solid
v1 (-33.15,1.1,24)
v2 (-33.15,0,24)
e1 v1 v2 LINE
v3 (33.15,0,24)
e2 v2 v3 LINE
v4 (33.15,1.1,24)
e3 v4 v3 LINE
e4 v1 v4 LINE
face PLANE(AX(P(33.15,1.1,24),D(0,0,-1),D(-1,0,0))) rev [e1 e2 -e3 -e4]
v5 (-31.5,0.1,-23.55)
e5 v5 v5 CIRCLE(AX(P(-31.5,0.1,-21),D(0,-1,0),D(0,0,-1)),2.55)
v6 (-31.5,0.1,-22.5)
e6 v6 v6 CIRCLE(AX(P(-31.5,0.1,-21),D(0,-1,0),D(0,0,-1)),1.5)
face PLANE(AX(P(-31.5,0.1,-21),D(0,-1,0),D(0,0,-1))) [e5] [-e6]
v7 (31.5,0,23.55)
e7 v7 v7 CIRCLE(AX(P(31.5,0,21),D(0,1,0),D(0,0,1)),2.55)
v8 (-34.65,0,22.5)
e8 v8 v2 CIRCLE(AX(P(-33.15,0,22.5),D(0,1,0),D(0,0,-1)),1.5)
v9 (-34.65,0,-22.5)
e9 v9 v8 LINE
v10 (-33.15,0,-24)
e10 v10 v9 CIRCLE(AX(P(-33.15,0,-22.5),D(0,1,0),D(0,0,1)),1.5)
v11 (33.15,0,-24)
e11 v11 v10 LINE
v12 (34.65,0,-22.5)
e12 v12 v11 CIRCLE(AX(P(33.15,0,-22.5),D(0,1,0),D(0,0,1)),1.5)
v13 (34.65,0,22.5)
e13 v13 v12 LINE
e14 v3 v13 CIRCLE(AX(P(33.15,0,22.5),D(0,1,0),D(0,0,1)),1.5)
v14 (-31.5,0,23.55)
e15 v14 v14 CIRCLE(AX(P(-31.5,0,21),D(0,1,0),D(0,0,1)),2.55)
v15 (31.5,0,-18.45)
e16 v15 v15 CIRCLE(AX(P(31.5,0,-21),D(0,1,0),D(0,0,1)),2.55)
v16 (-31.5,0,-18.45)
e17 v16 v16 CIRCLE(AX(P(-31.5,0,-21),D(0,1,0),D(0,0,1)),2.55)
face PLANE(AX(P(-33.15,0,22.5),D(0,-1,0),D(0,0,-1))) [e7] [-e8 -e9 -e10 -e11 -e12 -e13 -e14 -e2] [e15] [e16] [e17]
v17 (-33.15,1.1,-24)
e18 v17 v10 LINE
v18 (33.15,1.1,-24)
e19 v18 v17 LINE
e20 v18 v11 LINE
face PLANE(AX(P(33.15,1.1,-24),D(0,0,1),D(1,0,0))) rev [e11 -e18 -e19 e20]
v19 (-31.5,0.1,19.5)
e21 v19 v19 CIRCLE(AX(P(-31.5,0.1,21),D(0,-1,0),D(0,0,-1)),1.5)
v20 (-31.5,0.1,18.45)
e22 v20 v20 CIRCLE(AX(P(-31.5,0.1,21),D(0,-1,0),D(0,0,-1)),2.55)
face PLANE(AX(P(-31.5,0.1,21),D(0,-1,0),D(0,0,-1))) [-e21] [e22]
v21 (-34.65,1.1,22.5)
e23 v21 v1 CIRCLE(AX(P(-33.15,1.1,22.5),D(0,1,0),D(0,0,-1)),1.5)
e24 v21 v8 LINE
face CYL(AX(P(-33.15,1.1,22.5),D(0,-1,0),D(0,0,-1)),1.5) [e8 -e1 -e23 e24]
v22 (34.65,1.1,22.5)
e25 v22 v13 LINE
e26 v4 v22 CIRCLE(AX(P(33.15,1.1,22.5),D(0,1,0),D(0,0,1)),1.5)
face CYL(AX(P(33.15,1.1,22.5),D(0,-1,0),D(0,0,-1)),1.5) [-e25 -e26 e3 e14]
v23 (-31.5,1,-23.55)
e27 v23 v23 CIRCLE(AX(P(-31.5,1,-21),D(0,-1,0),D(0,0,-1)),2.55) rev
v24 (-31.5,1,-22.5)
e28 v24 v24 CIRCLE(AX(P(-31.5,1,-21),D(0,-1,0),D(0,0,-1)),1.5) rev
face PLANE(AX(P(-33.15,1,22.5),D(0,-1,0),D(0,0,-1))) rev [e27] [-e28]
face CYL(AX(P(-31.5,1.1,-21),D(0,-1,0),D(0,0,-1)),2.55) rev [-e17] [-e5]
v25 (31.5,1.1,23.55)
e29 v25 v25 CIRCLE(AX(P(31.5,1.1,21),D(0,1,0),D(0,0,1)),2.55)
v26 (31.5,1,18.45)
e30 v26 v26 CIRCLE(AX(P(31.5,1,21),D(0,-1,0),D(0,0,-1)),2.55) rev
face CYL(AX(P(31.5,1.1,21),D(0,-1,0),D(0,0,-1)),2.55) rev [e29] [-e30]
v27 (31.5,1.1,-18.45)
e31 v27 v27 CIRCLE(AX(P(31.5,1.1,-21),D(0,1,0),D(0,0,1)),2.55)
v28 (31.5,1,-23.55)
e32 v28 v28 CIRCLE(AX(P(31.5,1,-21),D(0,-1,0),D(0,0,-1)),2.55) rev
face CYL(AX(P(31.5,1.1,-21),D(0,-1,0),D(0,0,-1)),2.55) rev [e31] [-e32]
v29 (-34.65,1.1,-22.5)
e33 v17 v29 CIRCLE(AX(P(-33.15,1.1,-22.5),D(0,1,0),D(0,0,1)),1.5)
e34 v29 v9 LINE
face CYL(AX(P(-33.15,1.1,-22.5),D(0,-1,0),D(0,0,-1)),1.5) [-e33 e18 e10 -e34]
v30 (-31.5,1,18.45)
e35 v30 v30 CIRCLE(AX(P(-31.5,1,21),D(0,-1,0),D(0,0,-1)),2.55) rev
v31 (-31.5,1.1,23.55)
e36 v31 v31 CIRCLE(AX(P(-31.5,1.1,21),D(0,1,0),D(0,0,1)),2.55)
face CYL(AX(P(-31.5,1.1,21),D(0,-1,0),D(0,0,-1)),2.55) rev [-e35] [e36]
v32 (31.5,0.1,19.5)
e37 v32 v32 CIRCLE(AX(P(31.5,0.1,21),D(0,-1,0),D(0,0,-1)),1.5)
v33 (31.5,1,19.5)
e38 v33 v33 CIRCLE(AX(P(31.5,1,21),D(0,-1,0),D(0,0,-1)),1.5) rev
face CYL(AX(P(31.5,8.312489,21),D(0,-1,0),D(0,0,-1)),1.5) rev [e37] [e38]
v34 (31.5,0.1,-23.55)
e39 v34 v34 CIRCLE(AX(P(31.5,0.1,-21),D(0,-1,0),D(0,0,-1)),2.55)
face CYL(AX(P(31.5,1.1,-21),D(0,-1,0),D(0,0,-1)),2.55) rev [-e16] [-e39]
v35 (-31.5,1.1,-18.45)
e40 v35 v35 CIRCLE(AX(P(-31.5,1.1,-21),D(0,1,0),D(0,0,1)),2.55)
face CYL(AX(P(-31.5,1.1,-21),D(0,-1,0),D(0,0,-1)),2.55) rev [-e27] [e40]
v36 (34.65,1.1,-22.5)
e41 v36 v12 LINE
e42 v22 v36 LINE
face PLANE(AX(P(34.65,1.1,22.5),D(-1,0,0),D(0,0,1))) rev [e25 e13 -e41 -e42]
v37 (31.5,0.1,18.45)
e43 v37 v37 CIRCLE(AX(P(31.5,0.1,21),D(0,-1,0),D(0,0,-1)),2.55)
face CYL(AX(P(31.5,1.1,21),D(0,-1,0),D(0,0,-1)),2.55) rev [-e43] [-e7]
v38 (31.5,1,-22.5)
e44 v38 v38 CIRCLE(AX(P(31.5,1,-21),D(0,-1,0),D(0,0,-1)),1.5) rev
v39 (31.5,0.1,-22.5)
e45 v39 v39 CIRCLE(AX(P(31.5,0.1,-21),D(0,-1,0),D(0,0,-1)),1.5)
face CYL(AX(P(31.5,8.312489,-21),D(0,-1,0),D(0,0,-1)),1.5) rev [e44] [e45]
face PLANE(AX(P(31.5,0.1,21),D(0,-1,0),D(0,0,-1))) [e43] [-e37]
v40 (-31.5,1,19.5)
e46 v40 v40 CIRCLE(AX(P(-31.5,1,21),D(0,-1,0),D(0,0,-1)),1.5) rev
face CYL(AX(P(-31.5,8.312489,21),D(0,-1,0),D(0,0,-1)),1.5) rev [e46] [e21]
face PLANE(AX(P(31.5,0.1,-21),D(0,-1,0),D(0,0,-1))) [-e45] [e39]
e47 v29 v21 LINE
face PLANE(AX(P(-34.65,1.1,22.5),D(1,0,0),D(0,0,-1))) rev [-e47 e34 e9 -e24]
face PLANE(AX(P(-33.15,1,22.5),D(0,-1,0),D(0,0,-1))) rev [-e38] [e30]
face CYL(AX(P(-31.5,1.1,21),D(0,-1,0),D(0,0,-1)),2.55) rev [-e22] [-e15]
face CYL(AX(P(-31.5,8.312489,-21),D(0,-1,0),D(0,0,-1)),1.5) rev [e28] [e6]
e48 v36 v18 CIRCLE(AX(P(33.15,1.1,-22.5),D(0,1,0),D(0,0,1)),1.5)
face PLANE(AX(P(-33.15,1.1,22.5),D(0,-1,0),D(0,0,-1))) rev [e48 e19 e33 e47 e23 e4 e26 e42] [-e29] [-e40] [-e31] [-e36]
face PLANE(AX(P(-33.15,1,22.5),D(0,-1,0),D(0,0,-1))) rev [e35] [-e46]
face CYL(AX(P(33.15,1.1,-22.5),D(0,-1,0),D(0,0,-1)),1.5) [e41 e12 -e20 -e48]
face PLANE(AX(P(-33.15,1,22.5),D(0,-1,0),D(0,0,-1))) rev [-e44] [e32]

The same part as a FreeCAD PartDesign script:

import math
import FreeCAD as App
import Part
import Sketcher
from FreeCAD import Vector
Q = App.Units.Quantity

doc = App.newDocument("Part")
params = doc.addObject("Spreadsheet::Sheet", "Params")
for row, (alias, value) in enumerate([
    ("sketch1_diameter", "5.1 mm"),
    ("sketch1_radius", "1.5 mm"),
    ("sketch1_height", "45 mm"),
    ("sketch1_width", "66.3 mm"),
    ("pad1_length", "1.1 mm"),
    ("sketch2_diameter", "3 mm"),
    ("sketch2_diameter2", "5.1 mm"),
    ("pad2_length", "0.9 mm"),
], start=1):
    params.set(f"A{row}", alias)
    params.set(f"B{row}", "=" + value)
    params.setAlias(f"B{row}", alias)

body = doc.addObject("PartDesign::Body", "Body")

sketch1 = doc.addObject("Sketcher::SketchObject", "Sketch")
body.addObject(sketch1)
sketch1.AttachmentSupport = (doc.XZ_Plane, [""])
sketch1.MapMode = "FlatFace"
sketch1.addGeometry([
    Part.LineSegment(Vector(-33.1, 24, 0), Vector(33.1, 24, 0)),
    Part.ArcOfCircle(Part.Circle(Vector(33.2, 22.5, 0), Vector(0, 0, 1), 1.5), math.radians(0), math.radians(90)),
    Part.LineSegment(Vector(34.6, 22.5, 0), Vector(34.6, -22.5, 0)),
    Part.ArcOfCircle(Part.Circle(Vector(33.2, -22.5, 0), Vector(0, 0, 1), 1.5), math.radians(-90), math.radians(0)),
    Part.LineSegment(Vector(33.1, -24, 0), Vector(-33.1, -24, 0)),
    Part.ArcOfCircle(Part.Circle(Vector(-33.2, -22.5, 0), Vector(0, 0, 1), 1.5), math.radians(180), math.radians(270)),
    Part.LineSegment(Vector(-34.6, -22.5, 0), Vector(-34.6, 22.5, 0)),
    Part.ArcOfCircle(Part.Circle(Vector(-33.2, 22.5, 0), Vector(0, 0, 1), 1.5), math.radians(90), math.radians(180)),
    Part.Circle(Vector(31.5, 21, 0), Vector(0, 0, 1), 2.5),
    Part.Circle(Vector(-31.5, 21, 0), Vector(0, 0, 1), 2.5),
    Part.Circle(Vector(31.5, -21, 0), Vector(0, 0, 1), 2.5),
    Part.Circle(Vector(-31.5, -21, 0), Vector(0, 0, 1), 2.5),
], False)
sketch1.addConstraint([
    Sketcher.Constraint("Tangent", 0, 2, 1, 2),
    Sketcher.Constraint("Tangent", 1, 1, 2, 1),
    Sketcher.Constraint("Tangent", 2, 2, 3, 2),
    Sketcher.Constraint("Tangent", 3, 1, 4, 1),
    Sketcher.Constraint("Tangent", 4, 2, 5, 2),
    Sketcher.Constraint("Tangent", 5, 1, 6, 1),
    Sketcher.Constraint("Tangent", 6, 2, 7, 2),
    Sketcher.Constraint("Tangent", 7, 1, 0, 1),
    Sketcher.Constraint("Horizontal", 0),
    Sketcher.Constraint("Vertical", 2),
    Sketcher.Constraint("Horizontal", 4),
    Sketcher.Constraint("Vertical", 6),
    Sketcher.Constraint("Equal", 1, 3),
    Sketcher.Constraint("Equal", 3, 5),
    Sketcher.Constraint("Equal", 5, 7),
    Sketcher.Constraint("Equal", 8, 9),
    Sketcher.Constraint("Equal", 9, 10),
    Sketcher.Constraint("Equal", 10, 11),
    Sketcher.Constraint("Symmetric", 1, 3, 5, 3, -1, 1),
    Sketcher.Constraint("Symmetric", 9, 3, 10, 3, -1, 1),
    Sketcher.Constraint("Symmetric", 8, 3, 11, 3, -1, 1),
    Sketcher.Constraint("Symmetric", 8, 3, 9, 3, -2),
    Sketcher.Constraint("Diameter", 8, Q("5.1 mm")),
    Sketcher.Constraint("Radius", 1, Q("1.5 mm")),
    Sketcher.Constraint("DistanceY", 2, 2, 2, 1, Q("45 mm")),
    Sketcher.Constraint("DistanceX", 0, 1, 0, 2, Q("66.3 mm")),
    Sketcher.Constraint("DistanceY", -1, 1, 8, 3, Q("21 mm")),
    Sketcher.Constraint("DistanceX", 9, 3, 8, 3, Q("63 mm")),
])
sketch1.setExpression("Constraints[22]", "Params.sketch1_diameter")
sketch1.setExpression("Constraints[23]", "Params.sketch1_radius")
sketch1.setExpression("Constraints[24]", "Params.sketch1_height")
sketch1.setExpression("Constraints[25]", "Params.sketch1_width")
pad1 = doc.addObject("PartDesign::Pad", "Pad")
body.addObject(pad1)
pad1.Profile = sketch1
pad1.setExpression("Length", "Params.pad1_length")
pad1.Reversed = True

sketch2 = doc.addObject("Sketcher::SketchObject", "Sketch001")
body.addObject(sketch2)
sketch2.AttachmentSupport = (doc.XZ_Plane, [""])
sketch2.MapMode = "FlatFace"
sketch2.AttachmentOffset = App.Placement(Vector(0, 0, -0.1), App.Rotation())
sketch2.addGeometry([
    Part.Circle(Vector(-31.5, 21, 0), Vector(0, 0, 1), 2.5),
    Part.Circle(Vector(-31.5, 21, 0), Vector(0, 0, 1), 1.5),
    Part.Circle(Vector(31.5, 21, 0), Vector(0, 0, 1), 2.5),
    Part.Circle(Vector(31.5, 21, 0), Vector(0, 0, 1), 1.5),
    Part.Circle(Vector(31.5, -21, 0), Vector(0, 0, 1), 2.5),
    Part.Circle(Vector(31.5, -21, 0), Vector(0, 0, 1), 1.5),
    Part.Circle(Vector(-31.5, -21, 0), Vector(0, 0, 1), 2.5),
    Part.Circle(Vector(-31.5, -21, 0), Vector(0, 0, 1), 1.5),
], False)
sketch2.addConstraint([
    Sketcher.Constraint("Coincident", 1, 3, 0, 3),
    Sketcher.Constraint("Coincident", 3, 3, 2, 3),
    Sketcher.Constraint("Coincident", 5, 3, 4, 3),
    Sketcher.Constraint("Coincident", 7, 3, 6, 3),
    Sketcher.Constraint("Equal", 0, 2),
    Sketcher.Constraint("Equal", 1, 3),
    Sketcher.Constraint("Equal", 2, 4),
    Sketcher.Constraint("Equal", 3, 5),
    Sketcher.Constraint("Equal", 4, 6),
    Sketcher.Constraint("Equal", 5, 7),
    Sketcher.Constraint("Symmetric", 0, 3, 4, 3, -1, 1),
    Sketcher.Constraint("Symmetric", 2, 3, 6, 3, -1, 1),
    Sketcher.Constraint("Symmetric", 0, 3, 2, 3, -2),
    Sketcher.Constraint("Diameter", 1, Q("3 mm")),
    Sketcher.Constraint("Diameter", 0, Q("5.1 mm")),
    Sketcher.Constraint("DistanceY", -1, 1, 0, 3, Q("21 mm")),
    Sketcher.Constraint("DistanceX", 0, 3, 2, 3, Q("63 mm")),
])
sketch2.setExpression("Constraints[13]", "Params.sketch2_diameter")
sketch2.setExpression("Constraints[14]", "Params.sketch2_diameter2")
pad2 = doc.addObject("PartDesign::Pad", "Pad001")
body.addObject(pad2)
pad2.Profile = sketch2
pad2.setExpression("Length", "Params.pad2_length")
pad2.Reversed = True

doc.recompute()
